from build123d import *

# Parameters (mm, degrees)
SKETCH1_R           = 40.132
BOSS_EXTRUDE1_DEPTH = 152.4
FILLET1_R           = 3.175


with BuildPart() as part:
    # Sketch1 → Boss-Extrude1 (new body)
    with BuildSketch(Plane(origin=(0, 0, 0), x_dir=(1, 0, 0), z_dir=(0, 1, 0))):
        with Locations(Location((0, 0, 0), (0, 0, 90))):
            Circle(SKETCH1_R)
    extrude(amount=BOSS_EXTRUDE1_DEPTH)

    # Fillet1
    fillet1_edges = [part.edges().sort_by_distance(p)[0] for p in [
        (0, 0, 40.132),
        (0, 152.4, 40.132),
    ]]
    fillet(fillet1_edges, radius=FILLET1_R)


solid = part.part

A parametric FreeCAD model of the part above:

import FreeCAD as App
import Part
import Sketcher

V = App.Vector
Q = App.Units.Quantity


def edges_at(feature, points):
    """Names of the edges that pass closest to the given points."""
    edges = feature.Shape.Edges
    near = lambda p: min(range(len(edges)), key=lambda i: edges[i].distToShape(Part.Vertex(*p))[0])
    return sorted({f"Edge{near(p) + 1}" for p in points})

doc = App.newDocument("Part")
params = doc.addObject("Spreadsheet::Sheet", "Params")
for row, (alias, value) in enumerate([
    ("sketch1_diameter", "3.16 in"),
    ("pad1_length", "6 in"),
    ("fillet_radius", "0.125 in"),
], start=1):
    params.set(f"A{row}", alias)
    params.set(f"B{row}", "=" + value)
    params.setAlias(f"B{row}", alias)

body = doc.addObject("PartDesign::Body", "Body")

# Sketch on XZ plane
sketch1 = doc.addObject("Sketcher::SketchObject", "Sketch")
body.addObject(sketch1)
sketch1.AttachmentSupport = (doc.XZ_Plane, [""])
sketch1.MapMode = "FlatFace"
sketch1.addGeometry(Part.Circle(V(0, 0, 0), V(0, 0, 1), 40), False)
sketch1.addConstraint(Sketcher.Constraint("Coincident", 0, 3, -1, 1))
sketch1.addConstraint(Sketcher.Constraint("Diameter", 0, Q("3.16 in")))
sketch1.setExpression("Constraints[1]", "Params.sketch1_diameter")
pad1 = doc.addObject("PartDesign::Pad", "Pad")
body.addObject(pad1)
pad1.Profile = sketch1
pad1.setExpression("Length", "Params.pad1_length")
pad1.Reversed = True
doc.recompute()

fillet = doc.addObject("PartDesign::Fillet", "Fillet")
body.addObject(fillet)
fillet.Base = (pad1, edges_at(pad1, [(0, 0, 40.132), (0, 152.4, 40.132)]))
fillet.setExpression("Radius", "Params.fillet_radius")

doc.recompute()
